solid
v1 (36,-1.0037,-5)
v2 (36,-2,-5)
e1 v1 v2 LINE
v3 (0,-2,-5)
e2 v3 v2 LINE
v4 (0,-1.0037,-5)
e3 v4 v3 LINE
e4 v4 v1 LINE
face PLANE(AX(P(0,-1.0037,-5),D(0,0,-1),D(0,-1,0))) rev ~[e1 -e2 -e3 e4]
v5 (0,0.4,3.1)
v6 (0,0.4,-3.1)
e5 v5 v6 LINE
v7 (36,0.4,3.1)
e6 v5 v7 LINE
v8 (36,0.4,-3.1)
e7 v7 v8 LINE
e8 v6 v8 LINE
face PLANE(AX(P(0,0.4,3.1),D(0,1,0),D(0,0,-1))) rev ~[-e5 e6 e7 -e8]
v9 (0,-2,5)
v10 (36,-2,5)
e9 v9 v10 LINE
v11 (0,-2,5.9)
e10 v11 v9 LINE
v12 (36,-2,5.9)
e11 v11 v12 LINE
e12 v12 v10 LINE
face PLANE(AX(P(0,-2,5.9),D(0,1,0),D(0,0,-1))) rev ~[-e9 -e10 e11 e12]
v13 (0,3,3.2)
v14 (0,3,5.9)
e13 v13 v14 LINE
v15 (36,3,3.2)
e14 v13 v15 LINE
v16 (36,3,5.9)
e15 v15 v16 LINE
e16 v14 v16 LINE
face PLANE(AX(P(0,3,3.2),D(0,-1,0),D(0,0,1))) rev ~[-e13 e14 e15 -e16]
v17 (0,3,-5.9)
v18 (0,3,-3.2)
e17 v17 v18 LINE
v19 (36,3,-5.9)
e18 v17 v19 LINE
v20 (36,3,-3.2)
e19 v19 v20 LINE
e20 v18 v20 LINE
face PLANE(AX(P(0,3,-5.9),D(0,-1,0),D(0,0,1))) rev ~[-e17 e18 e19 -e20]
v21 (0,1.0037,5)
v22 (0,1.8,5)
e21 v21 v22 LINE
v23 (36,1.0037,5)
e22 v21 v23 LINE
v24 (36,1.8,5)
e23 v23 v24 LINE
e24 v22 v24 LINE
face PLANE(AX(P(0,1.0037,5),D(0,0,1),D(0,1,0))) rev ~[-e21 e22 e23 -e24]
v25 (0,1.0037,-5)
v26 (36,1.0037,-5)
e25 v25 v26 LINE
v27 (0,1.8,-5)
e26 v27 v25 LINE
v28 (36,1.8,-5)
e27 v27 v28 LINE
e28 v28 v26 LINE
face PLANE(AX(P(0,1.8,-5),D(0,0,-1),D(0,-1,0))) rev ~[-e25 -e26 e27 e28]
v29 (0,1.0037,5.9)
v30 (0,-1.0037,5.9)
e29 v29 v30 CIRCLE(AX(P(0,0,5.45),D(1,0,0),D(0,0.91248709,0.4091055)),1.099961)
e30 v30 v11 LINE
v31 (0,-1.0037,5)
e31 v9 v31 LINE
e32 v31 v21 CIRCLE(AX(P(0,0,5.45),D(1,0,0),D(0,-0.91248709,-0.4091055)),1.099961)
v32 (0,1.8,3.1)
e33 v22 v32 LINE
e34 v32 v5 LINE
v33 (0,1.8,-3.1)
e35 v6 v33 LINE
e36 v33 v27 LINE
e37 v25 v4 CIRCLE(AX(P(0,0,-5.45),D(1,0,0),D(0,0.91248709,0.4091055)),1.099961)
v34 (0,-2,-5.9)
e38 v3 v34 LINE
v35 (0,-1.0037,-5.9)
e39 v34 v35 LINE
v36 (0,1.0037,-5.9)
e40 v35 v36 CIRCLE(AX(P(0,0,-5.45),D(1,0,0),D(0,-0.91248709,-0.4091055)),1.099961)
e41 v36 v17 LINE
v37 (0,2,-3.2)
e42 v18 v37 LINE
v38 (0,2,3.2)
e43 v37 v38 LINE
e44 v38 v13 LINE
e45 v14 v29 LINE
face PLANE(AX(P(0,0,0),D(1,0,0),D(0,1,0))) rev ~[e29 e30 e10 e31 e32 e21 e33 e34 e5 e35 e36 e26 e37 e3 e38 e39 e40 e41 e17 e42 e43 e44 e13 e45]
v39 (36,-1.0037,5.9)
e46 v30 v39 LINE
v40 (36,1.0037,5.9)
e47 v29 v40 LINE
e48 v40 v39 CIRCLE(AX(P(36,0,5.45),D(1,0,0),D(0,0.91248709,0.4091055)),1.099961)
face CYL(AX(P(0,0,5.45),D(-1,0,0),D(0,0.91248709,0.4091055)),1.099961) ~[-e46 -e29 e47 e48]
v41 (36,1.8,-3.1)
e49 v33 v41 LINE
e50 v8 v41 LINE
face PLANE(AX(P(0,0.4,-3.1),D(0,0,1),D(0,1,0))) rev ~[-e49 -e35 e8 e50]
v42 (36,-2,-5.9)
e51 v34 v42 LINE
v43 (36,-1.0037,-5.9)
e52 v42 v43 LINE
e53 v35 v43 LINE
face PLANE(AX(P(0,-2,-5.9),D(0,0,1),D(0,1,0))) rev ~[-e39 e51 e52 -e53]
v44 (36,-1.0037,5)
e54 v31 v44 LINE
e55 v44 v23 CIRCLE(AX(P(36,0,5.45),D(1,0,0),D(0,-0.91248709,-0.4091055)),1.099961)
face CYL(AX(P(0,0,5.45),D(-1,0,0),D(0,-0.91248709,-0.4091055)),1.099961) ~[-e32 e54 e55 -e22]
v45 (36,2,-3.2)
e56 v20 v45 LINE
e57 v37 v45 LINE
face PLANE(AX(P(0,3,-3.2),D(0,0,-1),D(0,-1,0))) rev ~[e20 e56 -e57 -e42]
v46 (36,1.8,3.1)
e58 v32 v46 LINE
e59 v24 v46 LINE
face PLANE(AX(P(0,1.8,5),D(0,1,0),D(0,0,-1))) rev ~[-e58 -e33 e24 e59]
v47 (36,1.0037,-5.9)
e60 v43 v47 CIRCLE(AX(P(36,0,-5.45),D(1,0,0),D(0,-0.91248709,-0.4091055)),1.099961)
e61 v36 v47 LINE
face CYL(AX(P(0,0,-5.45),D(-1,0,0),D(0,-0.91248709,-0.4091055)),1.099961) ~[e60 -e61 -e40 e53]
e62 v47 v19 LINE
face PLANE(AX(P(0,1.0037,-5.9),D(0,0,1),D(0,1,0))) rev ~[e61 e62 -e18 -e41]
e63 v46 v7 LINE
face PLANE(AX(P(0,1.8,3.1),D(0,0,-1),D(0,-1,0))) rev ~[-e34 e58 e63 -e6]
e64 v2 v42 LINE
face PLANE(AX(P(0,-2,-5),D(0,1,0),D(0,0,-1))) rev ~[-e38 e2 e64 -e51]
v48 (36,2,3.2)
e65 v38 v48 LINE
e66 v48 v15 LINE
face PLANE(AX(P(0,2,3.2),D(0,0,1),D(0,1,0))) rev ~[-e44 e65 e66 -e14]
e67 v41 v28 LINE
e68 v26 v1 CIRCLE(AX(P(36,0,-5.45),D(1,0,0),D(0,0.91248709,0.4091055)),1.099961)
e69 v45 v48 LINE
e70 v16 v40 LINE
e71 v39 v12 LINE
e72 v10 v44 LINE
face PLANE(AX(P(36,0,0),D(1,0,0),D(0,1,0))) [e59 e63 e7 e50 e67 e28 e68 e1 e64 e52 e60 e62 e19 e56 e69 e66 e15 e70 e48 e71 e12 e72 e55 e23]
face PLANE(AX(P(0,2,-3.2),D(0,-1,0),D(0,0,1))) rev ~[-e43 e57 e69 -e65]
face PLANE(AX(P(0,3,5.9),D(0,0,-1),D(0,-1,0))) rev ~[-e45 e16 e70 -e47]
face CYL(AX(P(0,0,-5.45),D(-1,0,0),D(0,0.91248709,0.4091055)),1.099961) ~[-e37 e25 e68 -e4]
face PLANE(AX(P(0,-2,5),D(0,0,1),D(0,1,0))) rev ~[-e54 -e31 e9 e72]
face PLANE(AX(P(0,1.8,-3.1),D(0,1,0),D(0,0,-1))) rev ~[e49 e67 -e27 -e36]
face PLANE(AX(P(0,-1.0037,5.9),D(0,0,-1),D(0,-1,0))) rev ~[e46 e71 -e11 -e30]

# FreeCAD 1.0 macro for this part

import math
import FreeCAD as App
import Part
import Sketcher
from FreeCAD import Vector
Q = App.Units.Quantity

doc = App.newDocument("Part")
body = doc.addObject("PartDesign::Body", "Body")

# Sketch on YZ plane
sketch1 = body.newObject("Sketcher::SketchObject", "Sketch")
sketch1.AttachmentSupport = (doc.getObject("YZ_Plane"), [""])
sketch1.MapMode = "FlatFace"
sketch1.addGeometry(Part.LineSegment(Vector(3, 5.9, 0), Vector(1, 5.9, 0)), False)
sketch1.addGeometry(Part.ArcOfCircle(Part.Circle(Vector(0, 5.5, 0), Vector(0, 0, 1), 1.1), math.radians(24), math.radians(156)), False)
sketch1.addGeometry(Part.LineSegment(Vector(-1, 5.9, 0), Vector(-2, 5.9, 0)), False)
sketch1.addGeometry(Part.LineSegment(Vector(-2, 5.9, 0), Vector(-2, 5, 0)), False)
sketch1.addGeometry(Part.LineSegment(Vector(-2, 5, 0), Vector(-1, 5, 0)), False)
sketch1.addGeometry(Part.ArcOfCircle(Part.Circle(Vector(0, 5.5, 0), Vector(0, 0, 1), 1.1), math.radians(-156), math.radians(-24)), False)
sketch1.addGeometry(Part.LineSegment(Vector(1, 5, 0), Vector(1.8, 5, 0)), False)
sketch1.addGeometry(Part.LineSegment(Vector(1.8, 5, 0), Vector(1.8, 3.1, 0)), False)
sketch1.addGeometry(Part.LineSegment(Vector(1.8, 3.1, 0), Vector(0.4, 3.1, 0)), False)
sketch1.addGeometry(Part.LineSegment(Vector(0.4, 3.1, 0), Vector(0.4, -3.1, 0)), False)
sketch1.addGeometry(Part.LineSegment(Vector(0.4, -3.1, 0), Vector(1.8, -3.1, 0)), False)
sketch1.addGeometry(Part.LineSegment(Vector(1.8, -3.1, 0), Vector(1.8, -5, 0)), False)
sketch1.addGeometry(Part.LineSegment(Vector(1.8, -5, 0), Vector(1, -5, 0)), False)
sketch1.addGeometry(Part.ArcOfCircle(Part.Circle(Vector(0, -5.5, 0), Vector(0, 0, 1), 1.1), math.radians(24), math.radians(156)), False)
sketch1.addGeometry(Part.LineSegment(Vector(-1, -5, 0), Vector(-2, -5, 0)), False)
sketch1.addGeometry(Part.LineSegment(Vector(-2, -5, 0), Vector(-2, -5.9, 0)), False)
sketch1.addGeometry(Part.LineSegment(Vector(-2, -5.9, 0), Vector(-1, -5.9, 0)), False)
sketch1.addGeometry(Part.ArcOfCircle(Part.Circle(Vector(0, -5.5, 0), Vector(0, 0, 1), 1.1), math.radians(-156), math.radians(-24)), False)
sketch1.addGeometry(Part.LineSegment(Vector(1, -5.9, 0), Vector(3, -5.9, 0)), False)
sketch1.addGeometry(Part.LineSegment(Vector(3, -5.9, 0), Vector(3, -3.2, 0)), False)
sketch1.addGeometry(Part.LineSegment(Vector(3, -3.2, 0), Vector(2, -3.2, 0)), False)
sketch1.addGeometry(Part.LineSegment(Vector(2, -3.2, 0), Vector(2, 3.2, 0)), False)
sketch1.addGeometry(Part.LineSegment(Vector(2, 3.2, 0), Vector(3, 3.2, 0)), False)
sketch1.addGeometry(Part.LineSegment(Vector(3, 3.2, 0), Vector(3, 5.9, 0)), False)
sketch1.addConstraint(Sketcher.Constraint("Coincident", 0, 2, 1, 1))
sketch1.addConstraint(Sketcher.Constraint("Coincident", 1, 2, 2, 1))
sketch1.addConstraint(Sketcher.Constraint("Coincident", 2, 2, 3, 1))
sketch1.addConstraint(Sketcher.Constraint("Coincident", 3, 2, 4, 1))
sketch1.addConstraint(Sketcher.Constraint("Coincident", 4, 2, 5, 1))
sketch1.addConstraint(Sketcher.Constraint("Coincident", 5, 2, 6, 1))
sketch1.addConstraint(Sketcher.Constraint("Coincident", 6, 2, 7, 1))
sketch1.addConstraint(Sketcher.Constraint("Coincident", 7, 2, 8, 1))
sketch1.addConstraint(Sketcher.Constraint("Coincident", 8, 2, 9, 1))
sketch1.addConstraint(Sketcher.Constraint("Coincident", 9, 2, 10, 1))
sketch1.addConstraint(Sketcher.Constraint("Coincident", 10, 2, 11, 1))
sketch1.addConstraint(Sketcher.Constraint("Coincident", 11, 2, 12, 1))
sketch1.addConstraint(Sketcher.Constraint("Coincident", 12, 2, 13, 1))
sketch1.addConstraint(Sketcher.Constraint("Coincident", 13, 2, 14, 1))
sketch1.addConstraint(Sketcher.Constraint("Coincident", 14, 2, 15, 1))
sketch1.addConstraint(Sketcher.Constraint("Coincident", 15, 2, 16, 1))
sketch1.addConstraint(Sketcher.Constraint("Coincident", 16, 2, 17, 1))
sketch1.addConstraint(Sketcher.Constraint("Coincident", 17, 2, 18, 1))
sketch1.addConstraint(Sketcher.Constraint("Coincident", 18, 2, 19, 1))
sketch1.addConstraint(Sketcher.Constraint("Coincident", 19, 2, 20, 1))
sketch1.addConstraint(Sketcher.Constraint("Coincident", 20, 2, 21, 1))
sketch1.addConstraint(Sketcher.Constraint("Coincident", 21, 2, 22, 1))
sketch1.addConstraint(Sketcher.Constraint("Coincident", 22, 2, 23, 1))
sketch1.addConstraint(Sketcher.Constraint("Coincident", 23, 2, 0, 1))
sketch1.addConstraint(Sketcher.Constraint("Horizontal", 0))
sketch1.addConstraint(Sketcher.Constraint("Horizontal", 2))
sketch1.addConstraint(Sketcher.Constraint("Vertical", 3))
sketch1.addConstraint(Sketcher.Constraint("Horizontal", 4))
sketch1.addConstraint(Sketcher.Constraint("Horizontal", 6))
sketch1.addConstraint(Sketcher.Constraint("Vertical", 7))
sketch1.addConstraint(Sketcher.Constraint("Horizontal", 8))
sketch1.addConstraint(Sketcher.Constraint("Vertical", 9))
sketch1.addConstraint(Sketcher.Constraint("Horizontal", 10))
sketch1.addConstraint(Sketcher.Constraint("Vertical", 11))
sketch1.addConstraint(Sketcher.Constraint("Horizontal", 12))
sketch1.addConstraint(Sketcher.Constraint("Horizontal", 14))
sketch1.addConstraint(Sketcher.Constraint("Vertical", 15))
sketch1.addConstraint(Sketcher.Constraint("Horizontal", 16))
sketch1.addConstraint(Sketcher.Constraint("Horizontal", 18))
sketch1.addConstraint(Sketcher.Constraint("Vertical", 19))
sketch1.addConstraint(Sketcher.Constraint("Horizontal", 20))
sketch1.addConstraint(Sketcher.Constraint("Vertical", 21))
sketch1.addConstraint(Sketcher.Constraint("Horizontal", 22))
sketch1.addConstraint(Sketcher.Constraint("Vertical", 23))
sketch1.addConstraint(Sketcher.Constraint("Coincident", 5, 3, 1, 3))
sketch1.addConstraint(Sketcher.Constraint("Coincident", 17, 3, 13, 3))
sketch1.addConstraint(Sketcher.Constraint("Equal", 1, 5))
sketch1.addConstraint(Sketcher.Constraint("Equal", 5, 13))
sketch1.addConstraint(Sketcher.Constraint("Equal", 13, 17))
sketch1.addConstraint(Sketcher.Constraint("Symmetric", 1, 3, 13, 3, -1, 1))
sketch1.addConstraint(Sketcher.Constraint("Symmetric", 0, 2, 1, 2, -2))
sketch1.addConstraint(Sketcher.Constraint("Symmetric", 7, 2, 10, 2, -1))
sketch1.addConstraint(Sketcher.Constraint("Symmetric", 3, 2, 14, 2, -1))
sketch1.addConstraint(Sketcher.Constraint("Symmetric", 19, 2, 22, 2, -1))
sketch1.addConstraint(Sketcher.Constraint("Horizontal", 4, 2, 5, 2))
sketch1.addConstraint(Sketcher.Constraint("Horizontal", 12, 2, 13, 2))
sketch1.addConstraint(Sketcher.Constraint("Horizontal", 16, 2, 17, 2))
sketch1.addConstraint(Sketcher.Constraint("Vertical", 1, 2, 4, 2))
sketch1.addConstraint(Sketcher.Constraint("Vertical", 13, 2, 16, 2))
sketch1.addConstraint(Sketcher.Constraint("Radius", 1, Q("1.1 mm")))
sketch1.addConstraint(Sketcher.Constraint("DistanceX", 20, 2, 20, 1, Q("1 mm")))
sketch1.addConstraint(Sketcher.Constraint("DistanceX", 8, 2, 8, 1, Q("1.4 mm")))
sketch1.addConstraint(Sketcher.Constraint("DistanceY", 3, 2, 3, 1, Q("0.9 mm")))
sketch1.addConstraint(Sketcher.Constraint("DistanceY", 7, 2, 7, 1, Q("1.9 mm")))
sketch1.addConstraint(Sketcher.Constraint("DistanceY", 9, 2, 9, 1, Q("6.2 mm")))
sketch1.addConstraint(Sketcher.Constraint("DistanceY", 19, 1, 19, 2, Q("2.7 mm")))
sketch1.addConstraint(Sketcher.Constraint("DistanceX", 2, 2, -1, 1, Q("2 mm")))
sketch1.addConstraint(Sketcher.Constraint("DistanceX", -1, 1, 18, 2, Q("3 mm")))
sketch1.addConstraint(Sketcher.Constraint("DistanceX", -1, 1, 6, 2, Q("1.8 mm")))
pad1 = body.newObject("PartDesign::Pad", "Pad")
pad1.Profile = sketch1
pad1.Length = 36

doc.recompute()
